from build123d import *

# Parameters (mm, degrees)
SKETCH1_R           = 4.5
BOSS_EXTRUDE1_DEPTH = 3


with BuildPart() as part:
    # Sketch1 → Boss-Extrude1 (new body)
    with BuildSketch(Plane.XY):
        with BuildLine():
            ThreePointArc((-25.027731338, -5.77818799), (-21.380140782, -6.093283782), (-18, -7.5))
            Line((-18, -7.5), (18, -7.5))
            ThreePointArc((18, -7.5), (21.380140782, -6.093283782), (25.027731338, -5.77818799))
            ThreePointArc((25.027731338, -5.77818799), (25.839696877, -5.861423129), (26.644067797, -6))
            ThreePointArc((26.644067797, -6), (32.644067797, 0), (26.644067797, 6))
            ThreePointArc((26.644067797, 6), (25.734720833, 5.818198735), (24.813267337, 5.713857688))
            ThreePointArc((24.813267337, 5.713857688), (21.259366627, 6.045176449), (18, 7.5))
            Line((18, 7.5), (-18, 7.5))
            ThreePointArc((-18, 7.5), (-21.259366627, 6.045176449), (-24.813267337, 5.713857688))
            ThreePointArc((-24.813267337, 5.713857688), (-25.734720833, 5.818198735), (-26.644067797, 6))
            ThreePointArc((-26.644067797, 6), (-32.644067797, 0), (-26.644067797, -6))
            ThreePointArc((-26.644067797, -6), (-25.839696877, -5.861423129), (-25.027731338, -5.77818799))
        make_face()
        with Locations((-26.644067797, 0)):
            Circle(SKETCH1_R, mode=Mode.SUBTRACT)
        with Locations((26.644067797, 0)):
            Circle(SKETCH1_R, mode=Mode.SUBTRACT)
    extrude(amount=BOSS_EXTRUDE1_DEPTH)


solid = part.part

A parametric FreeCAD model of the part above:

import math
import FreeCAD as App
import Part
import Sketcher
Q = App.Units.Quantity

doc = App.newDocument("Part")
body = doc.addObject("PartDesign::Body", "Body")

# Sketch on XY plane
sketch1 = doc.addObject("Sketcher::SketchObject", "Sketch")
body.addObject(sketch1)
sketch1.AttachmentSupport = (doc.XY_Plane, [""])
sketch1.MapMode = "FlatFace"
sketch1.addGeometry([
    Part.ArcOfCircle(Part.Circle(App.Vector(-24.2, -17.7, 0), App.Vector(0, 0, 1), 11.9), math.radians(59), math.radians(94)),  # 0
    Part.LineSegment(App.Vector(-18, -7.5, 0), App.Vector(18, -7.5, 0)),  # 1
    Part.ArcOfCircle(Part.Circle(App.Vector(24.2, -17.7, 0), App.Vector(0, 0, 1), 11.9), math.radians(86), math.radians(121)),  # 2
    Part.ArcOfCircle(Part.Circle(App.Vector(24.2, -17.7, 0), App.Vector(0, 0, 1), 11.9), math.radians(78.26), math.radians(86.11)),  # 3
    Part.ArcOfCircle(Part.Circle(App.Vector(26.6, 0, 0), App.Vector(0, 0, 1), 6), math.radians(-90), math.radians(90)),  # 4
    Part.ArcOfCircle(Part.Circle(App.Vector(24, 16.7, 0), App.Vector(0, 0, 1), 11), math.radians(-85.96), math.radians(-76.27)),  # 5
    Part.ArcOfCircle(Part.Circle(App.Vector(24, 16.7, 0), App.Vector(0, 0, 1), 11), math.radians(-123), math.radians(-86)),  # 6
    Part.LineSegment(App.Vector(18, 7.5, 0), App.Vector(-18, 7.5, 0)),  # 7
    Part.ArcOfCircle(Part.Circle(App.Vector(-24, 16.7, 0), App.Vector(0, 0, 1), 11), math.radians(-94), math.radians(-57)),  # 8
    Part.ArcOfCircle(Part.Circle(App.Vector(-24, 16.7, 0), App.Vector(0, 0, 1), 11), math.radians(-103.73), math.radians(-94.04)),  # 9
    Part.ArcOfCircle(Part.Circle(App.Vector(-26.6, 0, 0), App.Vector(0, 0, 1), 6), math.radians(90), math.radians(270)),  # 10
    Part.ArcOfCircle(Part.Circle(App.Vector(-24.2, -17.7, 0), App.Vector(0, 0, 1), 11.9), math.radians(93.89), math.radians(101.74)),  # 11
    Part.Circle(App.Vector(-26.6, 0, 0), App.Vector(0, 0, 1), 4.5),  # 12
    Part.Circle(App.Vector(26.6, 0, 0), App.Vector(0, 0, 1), 4.5),  # 13
], False)
sketch1.addConstraint([
    Sketcher.Constraint("Coincident", 0, 1, 1, 1),
    Sketcher.Constraint("Coincident", 1, 2, 2, 2),
    Sketcher.Constraint("Tangent", 2, 1, 3, 2),
    Sketcher.Constraint("Coincident", 3, 1, 4, 1),
    Sketcher.Constraint("Coincident", 4, 2, 5, 2),
    Sketcher.Constraint("Tangent", 5, 1, 6, 2),
    Sketcher.Constraint("Coincident", 6, 1, 7, 1),
    Sketcher.Constraint("Coincident", 7, 2, 8, 2),
    Sketcher.Constraint("Tangent", 8, 1, 9, 2),
    Sketcher.Constraint("Coincident", 9, 1, 10, 1),
    Sketcher.Constraint("Coincident", 10, 2, 11, 2),
    Sketcher.Constraint("Tangent", 11, 1, 0, 2),
    Sketcher.Constraint("Horizontal", 1),
    Sketcher.Constraint("Horizontal", 7),
    Sketcher.Constraint("Coincident", 12, 3, 10, 3),
    Sketcher.Constraint("Coincident", 13, 3, 4, 3),
    Sketcher.Constraint("Equal", 0, 2),
    Sketcher.Constraint("Equal", 2, 3),
    Sketcher.Constraint("Equal", 5, 6),
    Sketcher.Constraint("Equal", 6, 8),
    Sketcher.Constraint("Equal", 8, 9),
    Sketcher.Constraint("Equal", 4, 10),
    Sketcher.Constraint("Equal", 3, 11),
    Sketcher.Constraint("Equal", 12, 13),
    Sketcher.Constraint("Symmetric", 4, 3, 10, 3, -1, 1),
    Sketcher.Constraint("Symmetric", 0, 1, 6, 1, -1, 1),
    Sketcher.Constraint("Symmetric", 0, 3, 2, 3, -2),
    Sketcher.Constraint("Symmetric", 5, 3, 8, 3, -2),
    Sketcher.Constraint("Symmetric", 3, 1, 4, 2, -1),
    Sketcher.Constraint("Horizontal", 5, 1, 8, 1),
    Sketcher.Constraint("Horizontal", 2, 1, 11, 1),
    Sketcher.Constraint("Vertical", 13, 3, 3, 1),
    Sketcher.Constraint("Diameter", 12, Q("9 mm")),
    Sketcher.Constraint("Radius", 4, Q("6 mm")),
    Sketcher.Constraint("DistanceX", 1, 1, 1, 2, Q("36 mm")),
    Sketcher.Constraint("DistanceY", 0, 1, 7, 2, Q("15 mm")),
    Sketcher.Constraint("Radius", 5, Q("10.96884 mm")),
    Sketcher.Constraint("Radius", 0, Q("11.926445 mm")),
    Sketcher.Constraint("DistanceY", 2, 3, 5, 3, Q("34.3326 mm")),
    Sketcher.Constraint("DistanceX", 5, 1, 4, 2, Q("1.8308 mm")),
    Sketcher.Constraint("DistanceX", -1, 1, 2, 1, Q("25.027731 mm")),
])
pad1 = doc.addObject("PartDesign::Pad", "Pad")
body.addObject(pad1)
pad1.Profile = sketch1
pad1.Length = 3

doc.recompute()
